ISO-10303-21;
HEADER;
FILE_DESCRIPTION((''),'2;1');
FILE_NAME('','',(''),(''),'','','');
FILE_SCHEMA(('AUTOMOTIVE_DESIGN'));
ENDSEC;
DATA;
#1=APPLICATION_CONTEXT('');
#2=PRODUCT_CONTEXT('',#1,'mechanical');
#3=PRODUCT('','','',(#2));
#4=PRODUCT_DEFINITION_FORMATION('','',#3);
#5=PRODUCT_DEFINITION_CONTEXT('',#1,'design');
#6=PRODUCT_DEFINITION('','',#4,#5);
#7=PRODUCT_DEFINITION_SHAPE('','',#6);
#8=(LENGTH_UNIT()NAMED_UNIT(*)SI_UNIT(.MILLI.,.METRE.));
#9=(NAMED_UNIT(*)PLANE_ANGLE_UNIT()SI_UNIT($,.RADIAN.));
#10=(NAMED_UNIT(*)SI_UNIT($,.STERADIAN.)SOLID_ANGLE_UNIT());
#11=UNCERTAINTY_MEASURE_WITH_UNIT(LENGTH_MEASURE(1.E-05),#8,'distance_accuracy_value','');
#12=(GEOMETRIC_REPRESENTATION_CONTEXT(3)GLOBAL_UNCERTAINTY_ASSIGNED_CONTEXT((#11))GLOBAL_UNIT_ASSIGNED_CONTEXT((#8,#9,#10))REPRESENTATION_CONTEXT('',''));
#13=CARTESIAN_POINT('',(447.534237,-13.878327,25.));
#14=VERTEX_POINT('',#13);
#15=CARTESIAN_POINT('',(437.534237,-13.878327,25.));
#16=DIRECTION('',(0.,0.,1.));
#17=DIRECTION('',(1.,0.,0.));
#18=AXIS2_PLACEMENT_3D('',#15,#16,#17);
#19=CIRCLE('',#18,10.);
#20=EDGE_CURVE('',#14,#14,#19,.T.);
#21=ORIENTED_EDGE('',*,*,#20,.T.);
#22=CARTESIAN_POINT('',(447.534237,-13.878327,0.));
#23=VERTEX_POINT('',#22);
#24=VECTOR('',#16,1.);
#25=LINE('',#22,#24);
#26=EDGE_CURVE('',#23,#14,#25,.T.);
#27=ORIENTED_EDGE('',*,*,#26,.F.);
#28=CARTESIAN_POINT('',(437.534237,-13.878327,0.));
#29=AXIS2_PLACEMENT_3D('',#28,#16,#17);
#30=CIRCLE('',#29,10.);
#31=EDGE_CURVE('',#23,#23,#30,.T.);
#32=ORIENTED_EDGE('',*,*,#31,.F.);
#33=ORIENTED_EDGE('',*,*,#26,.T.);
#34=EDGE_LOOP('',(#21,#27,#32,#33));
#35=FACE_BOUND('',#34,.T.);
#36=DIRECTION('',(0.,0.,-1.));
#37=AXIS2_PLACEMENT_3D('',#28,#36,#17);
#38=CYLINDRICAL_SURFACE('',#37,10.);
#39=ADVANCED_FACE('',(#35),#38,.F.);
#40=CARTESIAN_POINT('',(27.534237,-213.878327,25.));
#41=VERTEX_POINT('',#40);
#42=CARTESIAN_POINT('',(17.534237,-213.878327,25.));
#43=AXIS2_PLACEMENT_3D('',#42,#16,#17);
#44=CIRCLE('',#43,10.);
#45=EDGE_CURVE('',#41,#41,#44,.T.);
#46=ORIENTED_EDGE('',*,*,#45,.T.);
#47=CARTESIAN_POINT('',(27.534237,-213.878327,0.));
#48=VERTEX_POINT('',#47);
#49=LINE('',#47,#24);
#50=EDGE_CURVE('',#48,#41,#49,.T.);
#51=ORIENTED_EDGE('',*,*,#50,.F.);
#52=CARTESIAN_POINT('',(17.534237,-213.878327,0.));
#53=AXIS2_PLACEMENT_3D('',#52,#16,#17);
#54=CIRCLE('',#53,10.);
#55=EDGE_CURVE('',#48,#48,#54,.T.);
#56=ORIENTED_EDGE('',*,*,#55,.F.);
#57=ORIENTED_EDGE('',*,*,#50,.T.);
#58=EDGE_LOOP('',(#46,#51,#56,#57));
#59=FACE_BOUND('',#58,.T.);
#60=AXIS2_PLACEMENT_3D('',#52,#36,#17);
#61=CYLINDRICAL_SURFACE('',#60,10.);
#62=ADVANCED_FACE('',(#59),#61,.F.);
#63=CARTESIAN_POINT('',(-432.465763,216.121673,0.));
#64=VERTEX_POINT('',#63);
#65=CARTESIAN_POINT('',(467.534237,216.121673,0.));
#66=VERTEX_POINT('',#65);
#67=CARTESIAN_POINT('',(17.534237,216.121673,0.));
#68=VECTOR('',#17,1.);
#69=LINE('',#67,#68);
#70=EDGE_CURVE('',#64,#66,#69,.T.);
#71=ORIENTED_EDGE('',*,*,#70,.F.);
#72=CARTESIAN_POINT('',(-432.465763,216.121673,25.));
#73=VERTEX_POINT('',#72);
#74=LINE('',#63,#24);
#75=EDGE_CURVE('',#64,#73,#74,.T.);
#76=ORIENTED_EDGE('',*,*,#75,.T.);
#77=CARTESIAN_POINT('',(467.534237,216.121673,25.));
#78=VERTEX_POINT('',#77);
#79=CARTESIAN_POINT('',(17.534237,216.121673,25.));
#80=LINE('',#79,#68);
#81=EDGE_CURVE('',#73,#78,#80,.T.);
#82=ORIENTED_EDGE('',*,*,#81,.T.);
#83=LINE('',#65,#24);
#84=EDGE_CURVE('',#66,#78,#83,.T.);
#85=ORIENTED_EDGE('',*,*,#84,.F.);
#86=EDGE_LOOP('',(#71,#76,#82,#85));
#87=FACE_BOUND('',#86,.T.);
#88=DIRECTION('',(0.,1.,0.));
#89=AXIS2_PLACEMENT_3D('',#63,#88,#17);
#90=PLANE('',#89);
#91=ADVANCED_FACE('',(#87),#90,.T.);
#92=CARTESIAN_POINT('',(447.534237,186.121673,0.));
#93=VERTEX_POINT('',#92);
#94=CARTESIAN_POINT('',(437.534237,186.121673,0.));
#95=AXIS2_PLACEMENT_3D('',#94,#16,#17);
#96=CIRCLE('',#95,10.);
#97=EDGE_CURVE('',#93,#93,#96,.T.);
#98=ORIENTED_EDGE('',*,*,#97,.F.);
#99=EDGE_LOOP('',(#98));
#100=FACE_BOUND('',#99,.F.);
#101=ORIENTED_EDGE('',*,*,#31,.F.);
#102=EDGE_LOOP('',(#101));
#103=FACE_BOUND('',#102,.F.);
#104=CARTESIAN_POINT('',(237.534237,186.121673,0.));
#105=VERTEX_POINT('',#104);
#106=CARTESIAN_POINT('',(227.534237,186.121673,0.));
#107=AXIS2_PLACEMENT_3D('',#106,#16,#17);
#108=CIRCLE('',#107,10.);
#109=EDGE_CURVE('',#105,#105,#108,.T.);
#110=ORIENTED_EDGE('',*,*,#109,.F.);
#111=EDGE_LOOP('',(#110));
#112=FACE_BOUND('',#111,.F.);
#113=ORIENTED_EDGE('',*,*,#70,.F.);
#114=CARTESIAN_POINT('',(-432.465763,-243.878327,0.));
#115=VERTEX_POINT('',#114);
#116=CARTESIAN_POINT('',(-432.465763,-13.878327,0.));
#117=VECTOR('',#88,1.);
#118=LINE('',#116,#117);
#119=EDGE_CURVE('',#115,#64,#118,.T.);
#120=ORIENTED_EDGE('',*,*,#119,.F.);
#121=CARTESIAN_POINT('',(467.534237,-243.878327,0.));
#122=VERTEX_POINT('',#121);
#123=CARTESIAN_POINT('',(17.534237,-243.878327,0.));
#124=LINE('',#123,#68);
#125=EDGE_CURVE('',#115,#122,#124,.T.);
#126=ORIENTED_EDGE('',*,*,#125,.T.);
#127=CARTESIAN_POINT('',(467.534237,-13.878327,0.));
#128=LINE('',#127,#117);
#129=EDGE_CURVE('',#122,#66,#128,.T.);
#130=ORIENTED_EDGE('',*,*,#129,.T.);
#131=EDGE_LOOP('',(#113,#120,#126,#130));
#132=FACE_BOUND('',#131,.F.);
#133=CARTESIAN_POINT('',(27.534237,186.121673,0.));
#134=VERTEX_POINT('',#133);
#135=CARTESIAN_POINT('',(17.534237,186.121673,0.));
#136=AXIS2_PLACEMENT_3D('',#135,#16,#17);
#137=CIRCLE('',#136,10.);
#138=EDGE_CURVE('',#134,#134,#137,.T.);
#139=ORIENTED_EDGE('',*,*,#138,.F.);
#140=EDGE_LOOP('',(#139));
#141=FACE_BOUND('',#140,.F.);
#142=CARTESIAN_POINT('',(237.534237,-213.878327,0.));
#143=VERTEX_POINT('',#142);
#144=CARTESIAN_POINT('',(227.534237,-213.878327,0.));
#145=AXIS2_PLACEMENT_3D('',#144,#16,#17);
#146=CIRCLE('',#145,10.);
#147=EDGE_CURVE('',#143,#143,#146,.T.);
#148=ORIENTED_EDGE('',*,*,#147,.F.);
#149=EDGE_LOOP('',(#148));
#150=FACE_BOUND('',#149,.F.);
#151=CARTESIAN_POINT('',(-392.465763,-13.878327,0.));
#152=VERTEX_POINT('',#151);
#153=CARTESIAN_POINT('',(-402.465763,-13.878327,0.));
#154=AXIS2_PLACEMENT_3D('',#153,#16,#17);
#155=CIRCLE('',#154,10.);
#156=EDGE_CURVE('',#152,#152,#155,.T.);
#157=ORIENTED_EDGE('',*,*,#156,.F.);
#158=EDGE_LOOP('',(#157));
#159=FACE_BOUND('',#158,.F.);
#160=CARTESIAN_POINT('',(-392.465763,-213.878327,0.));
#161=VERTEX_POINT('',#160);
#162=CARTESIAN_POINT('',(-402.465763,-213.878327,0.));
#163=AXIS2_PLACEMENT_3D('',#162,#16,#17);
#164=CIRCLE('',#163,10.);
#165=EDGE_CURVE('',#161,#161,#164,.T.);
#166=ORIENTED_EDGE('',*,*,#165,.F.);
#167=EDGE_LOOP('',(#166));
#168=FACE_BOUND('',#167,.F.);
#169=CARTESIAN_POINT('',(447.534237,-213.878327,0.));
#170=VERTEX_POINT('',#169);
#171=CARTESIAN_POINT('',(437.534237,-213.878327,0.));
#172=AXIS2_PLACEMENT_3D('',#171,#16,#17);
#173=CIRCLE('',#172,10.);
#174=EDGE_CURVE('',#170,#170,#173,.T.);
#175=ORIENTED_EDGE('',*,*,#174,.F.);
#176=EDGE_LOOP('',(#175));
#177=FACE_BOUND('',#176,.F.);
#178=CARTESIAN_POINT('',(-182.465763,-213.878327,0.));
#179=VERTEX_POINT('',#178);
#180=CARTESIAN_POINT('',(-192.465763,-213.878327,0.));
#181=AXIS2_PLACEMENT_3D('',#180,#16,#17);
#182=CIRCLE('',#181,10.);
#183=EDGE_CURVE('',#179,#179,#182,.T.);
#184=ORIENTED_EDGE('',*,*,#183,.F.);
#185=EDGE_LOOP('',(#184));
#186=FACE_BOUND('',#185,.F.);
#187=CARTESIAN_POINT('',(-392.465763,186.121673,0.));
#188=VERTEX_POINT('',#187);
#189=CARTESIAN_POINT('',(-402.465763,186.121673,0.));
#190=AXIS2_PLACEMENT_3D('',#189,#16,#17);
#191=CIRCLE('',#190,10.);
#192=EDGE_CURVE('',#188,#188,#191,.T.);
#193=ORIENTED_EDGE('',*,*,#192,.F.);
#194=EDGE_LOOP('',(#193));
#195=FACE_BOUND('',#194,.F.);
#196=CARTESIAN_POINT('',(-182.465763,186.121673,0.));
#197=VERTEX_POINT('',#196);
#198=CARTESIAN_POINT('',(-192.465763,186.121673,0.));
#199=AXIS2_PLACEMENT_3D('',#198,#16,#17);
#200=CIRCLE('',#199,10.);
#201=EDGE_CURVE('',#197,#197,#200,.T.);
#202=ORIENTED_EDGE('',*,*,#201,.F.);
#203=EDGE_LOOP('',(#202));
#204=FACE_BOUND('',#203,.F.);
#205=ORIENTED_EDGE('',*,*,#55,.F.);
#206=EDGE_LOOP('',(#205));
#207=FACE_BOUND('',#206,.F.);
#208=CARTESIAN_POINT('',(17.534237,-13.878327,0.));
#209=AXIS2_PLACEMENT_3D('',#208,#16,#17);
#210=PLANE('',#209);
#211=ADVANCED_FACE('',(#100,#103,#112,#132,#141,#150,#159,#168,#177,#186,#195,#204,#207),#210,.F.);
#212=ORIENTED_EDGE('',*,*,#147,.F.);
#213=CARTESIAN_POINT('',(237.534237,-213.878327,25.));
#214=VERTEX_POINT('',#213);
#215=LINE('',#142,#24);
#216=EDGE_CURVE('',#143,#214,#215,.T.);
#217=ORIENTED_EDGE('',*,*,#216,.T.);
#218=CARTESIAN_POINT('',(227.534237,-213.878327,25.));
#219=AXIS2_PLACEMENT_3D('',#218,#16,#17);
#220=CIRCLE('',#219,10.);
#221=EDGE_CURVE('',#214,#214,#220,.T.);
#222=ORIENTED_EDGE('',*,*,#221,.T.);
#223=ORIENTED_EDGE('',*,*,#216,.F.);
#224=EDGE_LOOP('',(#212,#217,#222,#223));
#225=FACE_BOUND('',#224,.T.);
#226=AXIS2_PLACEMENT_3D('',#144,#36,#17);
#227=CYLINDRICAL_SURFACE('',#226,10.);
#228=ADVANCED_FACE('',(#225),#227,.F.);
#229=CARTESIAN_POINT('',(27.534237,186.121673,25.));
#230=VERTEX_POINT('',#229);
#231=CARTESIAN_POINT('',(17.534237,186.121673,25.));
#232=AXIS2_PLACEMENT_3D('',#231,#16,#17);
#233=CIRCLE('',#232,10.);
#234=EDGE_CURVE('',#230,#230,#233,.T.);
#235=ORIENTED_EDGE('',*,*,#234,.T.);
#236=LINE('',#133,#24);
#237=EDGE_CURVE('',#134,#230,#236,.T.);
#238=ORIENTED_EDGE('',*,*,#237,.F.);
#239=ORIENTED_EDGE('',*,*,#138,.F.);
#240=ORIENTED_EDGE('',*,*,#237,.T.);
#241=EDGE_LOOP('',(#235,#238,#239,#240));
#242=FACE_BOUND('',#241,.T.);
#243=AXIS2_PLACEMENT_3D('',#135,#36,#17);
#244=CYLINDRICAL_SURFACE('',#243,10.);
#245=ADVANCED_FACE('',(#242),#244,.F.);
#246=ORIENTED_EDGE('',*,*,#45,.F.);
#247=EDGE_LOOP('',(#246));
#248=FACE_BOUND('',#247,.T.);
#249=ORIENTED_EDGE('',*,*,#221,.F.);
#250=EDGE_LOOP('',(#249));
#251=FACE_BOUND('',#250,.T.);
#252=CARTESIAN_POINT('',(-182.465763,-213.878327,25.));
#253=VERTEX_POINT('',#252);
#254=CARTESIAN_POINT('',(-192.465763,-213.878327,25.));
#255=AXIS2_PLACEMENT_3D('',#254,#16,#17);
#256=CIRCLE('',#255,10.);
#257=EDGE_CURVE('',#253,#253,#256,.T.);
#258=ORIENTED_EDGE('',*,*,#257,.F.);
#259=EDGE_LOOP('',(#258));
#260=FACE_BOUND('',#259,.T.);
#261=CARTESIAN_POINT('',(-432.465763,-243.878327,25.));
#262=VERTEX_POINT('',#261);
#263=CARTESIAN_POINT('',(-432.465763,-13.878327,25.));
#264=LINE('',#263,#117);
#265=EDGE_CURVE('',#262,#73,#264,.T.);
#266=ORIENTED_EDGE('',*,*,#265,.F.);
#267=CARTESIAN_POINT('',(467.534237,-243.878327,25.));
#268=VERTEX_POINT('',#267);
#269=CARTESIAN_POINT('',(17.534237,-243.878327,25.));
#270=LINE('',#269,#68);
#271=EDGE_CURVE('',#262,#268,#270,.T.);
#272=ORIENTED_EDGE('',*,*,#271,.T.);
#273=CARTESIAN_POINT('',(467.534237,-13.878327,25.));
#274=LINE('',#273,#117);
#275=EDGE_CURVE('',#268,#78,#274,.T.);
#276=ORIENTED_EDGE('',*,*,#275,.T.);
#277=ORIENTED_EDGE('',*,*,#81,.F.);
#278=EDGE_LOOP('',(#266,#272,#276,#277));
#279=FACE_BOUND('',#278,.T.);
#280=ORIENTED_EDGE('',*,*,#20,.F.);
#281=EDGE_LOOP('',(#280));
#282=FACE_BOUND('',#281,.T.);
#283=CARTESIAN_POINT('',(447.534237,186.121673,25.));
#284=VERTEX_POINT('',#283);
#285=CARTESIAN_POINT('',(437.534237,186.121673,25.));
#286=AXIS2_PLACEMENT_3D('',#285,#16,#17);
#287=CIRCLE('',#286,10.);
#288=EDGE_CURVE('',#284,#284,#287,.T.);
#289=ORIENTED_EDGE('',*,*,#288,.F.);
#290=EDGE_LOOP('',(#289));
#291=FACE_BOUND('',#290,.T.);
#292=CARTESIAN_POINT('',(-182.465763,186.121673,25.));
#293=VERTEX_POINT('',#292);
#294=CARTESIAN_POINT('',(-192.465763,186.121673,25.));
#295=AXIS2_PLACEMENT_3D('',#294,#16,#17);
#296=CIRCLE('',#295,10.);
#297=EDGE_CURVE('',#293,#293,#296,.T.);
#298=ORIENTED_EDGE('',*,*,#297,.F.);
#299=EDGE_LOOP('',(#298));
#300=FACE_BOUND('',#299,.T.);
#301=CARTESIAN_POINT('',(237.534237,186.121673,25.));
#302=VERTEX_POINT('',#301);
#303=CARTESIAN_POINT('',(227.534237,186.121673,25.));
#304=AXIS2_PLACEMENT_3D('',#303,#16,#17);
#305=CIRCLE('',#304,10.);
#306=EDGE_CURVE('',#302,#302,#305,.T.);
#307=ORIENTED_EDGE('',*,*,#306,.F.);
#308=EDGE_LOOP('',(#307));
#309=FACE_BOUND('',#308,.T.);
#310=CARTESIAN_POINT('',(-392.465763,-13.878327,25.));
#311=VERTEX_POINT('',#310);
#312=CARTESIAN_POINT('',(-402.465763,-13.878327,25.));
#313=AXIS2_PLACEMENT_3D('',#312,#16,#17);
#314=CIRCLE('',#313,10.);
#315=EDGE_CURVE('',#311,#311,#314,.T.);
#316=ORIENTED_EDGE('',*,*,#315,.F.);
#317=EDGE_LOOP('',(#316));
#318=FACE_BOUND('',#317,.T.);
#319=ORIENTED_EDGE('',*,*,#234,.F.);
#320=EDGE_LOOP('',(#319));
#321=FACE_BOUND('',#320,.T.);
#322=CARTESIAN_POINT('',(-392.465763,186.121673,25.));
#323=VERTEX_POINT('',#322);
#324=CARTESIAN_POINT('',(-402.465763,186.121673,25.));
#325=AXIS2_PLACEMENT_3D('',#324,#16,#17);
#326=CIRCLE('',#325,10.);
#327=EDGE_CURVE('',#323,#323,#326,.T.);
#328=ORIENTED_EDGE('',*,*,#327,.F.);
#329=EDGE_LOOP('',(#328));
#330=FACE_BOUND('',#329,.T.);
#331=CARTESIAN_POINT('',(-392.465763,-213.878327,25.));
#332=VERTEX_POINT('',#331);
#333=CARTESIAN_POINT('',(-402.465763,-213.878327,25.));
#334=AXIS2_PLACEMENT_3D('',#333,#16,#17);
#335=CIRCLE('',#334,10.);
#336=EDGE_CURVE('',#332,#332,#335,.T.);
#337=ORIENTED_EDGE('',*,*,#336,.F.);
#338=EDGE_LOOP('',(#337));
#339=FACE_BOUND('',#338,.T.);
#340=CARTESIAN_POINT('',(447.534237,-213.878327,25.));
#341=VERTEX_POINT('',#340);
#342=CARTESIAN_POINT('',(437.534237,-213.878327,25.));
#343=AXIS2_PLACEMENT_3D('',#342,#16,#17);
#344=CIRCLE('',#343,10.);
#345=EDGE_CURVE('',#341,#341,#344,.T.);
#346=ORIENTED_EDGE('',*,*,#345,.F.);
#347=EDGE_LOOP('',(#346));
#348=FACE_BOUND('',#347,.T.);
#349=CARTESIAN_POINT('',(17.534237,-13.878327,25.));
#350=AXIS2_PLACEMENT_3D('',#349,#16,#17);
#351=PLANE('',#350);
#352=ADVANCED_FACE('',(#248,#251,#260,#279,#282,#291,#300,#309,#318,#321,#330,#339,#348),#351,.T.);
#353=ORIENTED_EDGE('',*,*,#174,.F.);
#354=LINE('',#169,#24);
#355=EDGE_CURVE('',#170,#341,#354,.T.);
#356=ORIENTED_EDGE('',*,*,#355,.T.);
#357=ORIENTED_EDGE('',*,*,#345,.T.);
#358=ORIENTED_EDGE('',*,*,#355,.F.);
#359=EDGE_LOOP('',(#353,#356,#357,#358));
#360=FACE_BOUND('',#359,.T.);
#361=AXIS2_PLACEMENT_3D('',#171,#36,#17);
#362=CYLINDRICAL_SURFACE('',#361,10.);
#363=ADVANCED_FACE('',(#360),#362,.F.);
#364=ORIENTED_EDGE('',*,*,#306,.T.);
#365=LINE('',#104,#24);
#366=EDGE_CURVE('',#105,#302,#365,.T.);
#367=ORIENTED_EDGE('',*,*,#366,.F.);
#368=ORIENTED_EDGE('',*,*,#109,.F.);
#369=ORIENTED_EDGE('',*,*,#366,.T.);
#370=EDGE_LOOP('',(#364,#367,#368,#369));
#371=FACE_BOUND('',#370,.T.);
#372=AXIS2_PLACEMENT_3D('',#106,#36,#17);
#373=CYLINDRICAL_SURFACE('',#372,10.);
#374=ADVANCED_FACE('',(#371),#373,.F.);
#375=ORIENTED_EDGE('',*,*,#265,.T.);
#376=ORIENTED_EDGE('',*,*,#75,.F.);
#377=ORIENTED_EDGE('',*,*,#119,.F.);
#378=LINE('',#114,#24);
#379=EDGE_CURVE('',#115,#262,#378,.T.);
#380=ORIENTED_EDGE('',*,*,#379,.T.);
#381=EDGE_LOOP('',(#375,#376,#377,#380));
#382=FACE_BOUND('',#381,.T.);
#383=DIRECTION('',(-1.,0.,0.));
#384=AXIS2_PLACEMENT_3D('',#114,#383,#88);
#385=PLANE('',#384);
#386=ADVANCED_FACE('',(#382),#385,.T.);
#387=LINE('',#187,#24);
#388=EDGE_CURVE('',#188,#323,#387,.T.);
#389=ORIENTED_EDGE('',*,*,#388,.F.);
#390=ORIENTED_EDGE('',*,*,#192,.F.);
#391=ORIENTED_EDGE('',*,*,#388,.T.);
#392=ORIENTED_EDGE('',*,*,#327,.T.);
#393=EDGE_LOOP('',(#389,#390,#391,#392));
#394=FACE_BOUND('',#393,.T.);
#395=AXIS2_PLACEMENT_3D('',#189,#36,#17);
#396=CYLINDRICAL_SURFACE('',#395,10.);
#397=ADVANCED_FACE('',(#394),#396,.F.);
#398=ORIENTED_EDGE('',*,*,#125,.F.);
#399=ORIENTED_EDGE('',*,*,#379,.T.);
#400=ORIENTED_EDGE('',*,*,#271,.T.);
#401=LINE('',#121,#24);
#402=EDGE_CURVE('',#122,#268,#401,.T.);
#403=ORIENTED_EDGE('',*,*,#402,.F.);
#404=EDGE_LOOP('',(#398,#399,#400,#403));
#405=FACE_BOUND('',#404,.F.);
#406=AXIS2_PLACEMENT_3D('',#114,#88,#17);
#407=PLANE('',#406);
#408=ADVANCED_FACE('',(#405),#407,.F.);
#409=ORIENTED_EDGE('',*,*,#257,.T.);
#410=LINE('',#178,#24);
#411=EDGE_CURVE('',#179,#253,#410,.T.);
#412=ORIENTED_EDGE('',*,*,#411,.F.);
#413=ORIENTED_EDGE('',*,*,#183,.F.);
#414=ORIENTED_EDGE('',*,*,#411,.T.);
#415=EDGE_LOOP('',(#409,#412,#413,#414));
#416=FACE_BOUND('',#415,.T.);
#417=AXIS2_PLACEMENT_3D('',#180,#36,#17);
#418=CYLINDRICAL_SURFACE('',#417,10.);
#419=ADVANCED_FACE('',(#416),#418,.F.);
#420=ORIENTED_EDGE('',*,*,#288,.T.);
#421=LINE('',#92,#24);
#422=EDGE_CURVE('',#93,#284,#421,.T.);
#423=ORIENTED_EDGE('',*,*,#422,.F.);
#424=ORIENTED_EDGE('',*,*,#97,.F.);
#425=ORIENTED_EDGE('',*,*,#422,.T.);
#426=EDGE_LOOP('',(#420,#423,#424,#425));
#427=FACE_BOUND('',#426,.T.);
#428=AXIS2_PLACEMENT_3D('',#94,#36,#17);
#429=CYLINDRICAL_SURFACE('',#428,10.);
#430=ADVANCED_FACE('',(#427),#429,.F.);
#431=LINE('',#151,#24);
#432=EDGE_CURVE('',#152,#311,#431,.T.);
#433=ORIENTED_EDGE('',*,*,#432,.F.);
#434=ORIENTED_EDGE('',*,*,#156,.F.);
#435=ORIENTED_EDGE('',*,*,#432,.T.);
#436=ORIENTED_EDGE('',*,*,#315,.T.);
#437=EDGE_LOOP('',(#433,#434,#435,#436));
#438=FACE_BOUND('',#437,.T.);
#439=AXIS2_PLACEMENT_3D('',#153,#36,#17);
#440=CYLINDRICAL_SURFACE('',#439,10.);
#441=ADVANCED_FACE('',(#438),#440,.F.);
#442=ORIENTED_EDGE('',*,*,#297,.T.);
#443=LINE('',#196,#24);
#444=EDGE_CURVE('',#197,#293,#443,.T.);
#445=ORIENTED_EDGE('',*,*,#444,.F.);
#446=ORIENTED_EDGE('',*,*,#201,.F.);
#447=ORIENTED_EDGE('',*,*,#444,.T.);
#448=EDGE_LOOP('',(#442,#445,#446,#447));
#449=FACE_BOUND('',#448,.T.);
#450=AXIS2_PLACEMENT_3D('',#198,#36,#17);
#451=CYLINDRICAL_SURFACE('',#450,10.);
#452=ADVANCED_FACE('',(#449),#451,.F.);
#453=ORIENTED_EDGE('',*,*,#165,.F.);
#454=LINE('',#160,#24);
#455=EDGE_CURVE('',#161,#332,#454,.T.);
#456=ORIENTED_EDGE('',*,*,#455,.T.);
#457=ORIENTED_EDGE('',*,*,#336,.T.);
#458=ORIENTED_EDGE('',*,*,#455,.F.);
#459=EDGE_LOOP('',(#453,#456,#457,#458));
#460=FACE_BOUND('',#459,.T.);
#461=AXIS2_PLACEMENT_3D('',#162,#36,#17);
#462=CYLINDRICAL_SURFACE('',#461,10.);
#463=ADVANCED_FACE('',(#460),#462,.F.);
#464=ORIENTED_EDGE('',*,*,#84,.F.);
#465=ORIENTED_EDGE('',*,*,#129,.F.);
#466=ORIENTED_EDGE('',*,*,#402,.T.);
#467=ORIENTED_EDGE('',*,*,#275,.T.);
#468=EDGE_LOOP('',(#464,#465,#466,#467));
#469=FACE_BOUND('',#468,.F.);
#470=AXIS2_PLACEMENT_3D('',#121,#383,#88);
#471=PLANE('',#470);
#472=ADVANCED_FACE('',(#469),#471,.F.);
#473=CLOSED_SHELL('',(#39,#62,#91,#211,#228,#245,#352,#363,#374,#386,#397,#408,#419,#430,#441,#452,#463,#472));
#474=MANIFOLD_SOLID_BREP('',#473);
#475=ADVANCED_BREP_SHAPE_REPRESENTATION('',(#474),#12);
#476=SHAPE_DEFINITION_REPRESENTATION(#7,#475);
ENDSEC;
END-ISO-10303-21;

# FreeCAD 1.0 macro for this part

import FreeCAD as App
import Part
import Sketcher
from FreeCAD import Vector
Q = App.Units.Quantity

doc = App.newDocument("Part")
body = doc.addObject("PartDesign::Body", "Body")

sketch1 = body.newObject("Sketcher::SketchObject", "Sketch")
sketch1.AttachmentSupport = (doc.getObject("XY_Plane"), [""])
sketch1.MapMode = "FlatFace"
sketch1.addGeometry([
    Part.LineSegment(Vector(-432, 216, 0), Vector(-432, -244, 0)),
    Part.LineSegment(Vector(-432, -244, 0), Vector(468, -244, 0)),
    Part.LineSegment(Vector(468, -244, 0), Vector(468, 216, 0)),
    Part.LineSegment(Vector(468, 216, 0), Vector(-432, 216, 0)),
    Part.Circle(Vector(-402, -214, 0), Vector(0, 0, 1), 10),
    Part.Circle(Vector(-192, -214, 0), Vector(0, 0, 1), 10),
    Part.Circle(Vector(18, -214, 0), Vector(0, 0, 1), 10),
    Part.Circle(Vector(228, -214, 0), Vector(0, 0, 1), 10),
    Part.Circle(Vector(438, -214, 0), Vector(0, 0, 1), 10),
    Part.Circle(Vector(-402, -14, 0), Vector(0, 0, 1), 10),
    Part.Circle(Vector(-402, 186, 0), Vector(0, 0, 1), 10),
    Part.Circle(Vector(-192, 186, 0), Vector(0, 0, 1), 10),
    Part.Circle(Vector(438, -14, 0), Vector(0, 0, 1), 10),
    Part.Circle(Vector(18, 186, 0), Vector(0, 0, 1), 10),
    Part.Circle(Vector(228, 186, 0), Vector(0, 0, 1), 10),
    Part.Circle(Vector(438, 186, 0), Vector(0, 0, 1), 10),
], False)
sketch1.addConstraint([
    Sketcher.Constraint("Coincident", 0, 2, 1, 1),
    Sketcher.Constraint("Coincident", 1, 2, 2, 1),
    Sketcher.Constraint("Coincident", 2, 2, 3, 1),
    Sketcher.Constraint("Coincident", 3, 2, 0, 1),
    Sketcher.Constraint("Vertical", 0),
    Sketcher.Constraint("Horizontal", 1),
    Sketcher.Constraint("Vertical", 2),
    Sketcher.Constraint("Horizontal", 3),
    Sketcher.Constraint("Equal", 4, 5),
    Sketcher.Constraint("Equal", 5, 6),
    Sketcher.Constraint("Equal", 6, 7),
    Sketcher.Constraint("Equal", 7, 8),
    Sketcher.Constraint("Equal", 8, 9),
    Sketcher.Constraint("Equal", 9, 10),
    Sketcher.Constraint("Equal", 10, 11),
    Sketcher.Constraint("Equal", 11, 12),
    Sketcher.Constraint("Equal", 12, 13),
    Sketcher.Constraint("Equal", 13, 14),
    Sketcher.Constraint("Equal", 14, 15),
    Sketcher.Constraint("Horizontal", 4, 3, 5, 3),
    Sketcher.Constraint("Horizontal", 5, 3, 6, 3),
    Sketcher.Constraint("Horizontal", 6, 3, 7, 3),
    Sketcher.Constraint("Horizontal", 7, 3, 8, 3),
    Sketcher.Constraint("Horizontal", 10, 3, 11, 3),
    Sketcher.Constraint("Horizontal", 9, 3, 12, 3),
    Sketcher.Constraint("Horizontal", 11, 3, 13, 3),
    Sketcher.Constraint("Horizontal", 13, 3, 14, 3),
    Sketcher.Constraint("Horizontal", 14, 3, 15, 3),
    Sketcher.Constraint("Vertical", 4, 3, 9, 3),
    Sketcher.Constraint("Vertical", 9, 3, 10, 3),
    Sketcher.Constraint("Vertical", 5, 3, 11, 3),
    Sketcher.Constraint("Vertical", 8, 3, 12, 3),
    Sketcher.Constraint("Vertical", 6, 3, 13, 3),
    Sketcher.Constraint("Vertical", 7, 3, 14, 3),
    Sketcher.Constraint("Vertical", 12, 3, 15, 3),
    Sketcher.Constraint("Diameter", 4, Q("20 mm")),
    Sketcher.Constraint("DistanceX", 1, 1, 1, 2, Q("900 mm")),
    Sketcher.Constraint("DistanceY", 0, 2, 0, 1, Q("460 mm")),
    Sketcher.Constraint("DistanceX", 4, 3, 5, 3, Q("210 mm")),
    Sketcher.Constraint("DistanceX", 5, 3, 6, 3, Q("210 mm")),
    Sketcher.Constraint("DistanceX", 6, 3, 7, 3, Q("210 mm")),
    Sketcher.Constraint("DistanceX", 7, 3, 8, 3, Q("210 mm")),
    Sketcher.Constraint("DistanceY", 4, 3, 9, 3, Q("200 mm")),
    Sketcher.Constraint("DistanceY", 9, 3, 10, 3, Q("200 mm")),
    Sketcher.Constraint("DistanceX", 0, 2, 4, 3, Q("30 mm")),
    Sketcher.Constraint("DistanceY", 0, 2, 4, 3, Q("30 mm")),
    Sketcher.Constraint("DistanceX", 4, 3, -1, 1, Q("402.465763 mm")),
    Sketcher.Constraint("DistanceY", 4, 3, -1, 1, Q("213.878327 mm")),
])
pad1 = body.newObject("PartDesign::Pad", "Pad")
pad1.Profile = sketch1
pad1.Length = 25

doc.recompute()
